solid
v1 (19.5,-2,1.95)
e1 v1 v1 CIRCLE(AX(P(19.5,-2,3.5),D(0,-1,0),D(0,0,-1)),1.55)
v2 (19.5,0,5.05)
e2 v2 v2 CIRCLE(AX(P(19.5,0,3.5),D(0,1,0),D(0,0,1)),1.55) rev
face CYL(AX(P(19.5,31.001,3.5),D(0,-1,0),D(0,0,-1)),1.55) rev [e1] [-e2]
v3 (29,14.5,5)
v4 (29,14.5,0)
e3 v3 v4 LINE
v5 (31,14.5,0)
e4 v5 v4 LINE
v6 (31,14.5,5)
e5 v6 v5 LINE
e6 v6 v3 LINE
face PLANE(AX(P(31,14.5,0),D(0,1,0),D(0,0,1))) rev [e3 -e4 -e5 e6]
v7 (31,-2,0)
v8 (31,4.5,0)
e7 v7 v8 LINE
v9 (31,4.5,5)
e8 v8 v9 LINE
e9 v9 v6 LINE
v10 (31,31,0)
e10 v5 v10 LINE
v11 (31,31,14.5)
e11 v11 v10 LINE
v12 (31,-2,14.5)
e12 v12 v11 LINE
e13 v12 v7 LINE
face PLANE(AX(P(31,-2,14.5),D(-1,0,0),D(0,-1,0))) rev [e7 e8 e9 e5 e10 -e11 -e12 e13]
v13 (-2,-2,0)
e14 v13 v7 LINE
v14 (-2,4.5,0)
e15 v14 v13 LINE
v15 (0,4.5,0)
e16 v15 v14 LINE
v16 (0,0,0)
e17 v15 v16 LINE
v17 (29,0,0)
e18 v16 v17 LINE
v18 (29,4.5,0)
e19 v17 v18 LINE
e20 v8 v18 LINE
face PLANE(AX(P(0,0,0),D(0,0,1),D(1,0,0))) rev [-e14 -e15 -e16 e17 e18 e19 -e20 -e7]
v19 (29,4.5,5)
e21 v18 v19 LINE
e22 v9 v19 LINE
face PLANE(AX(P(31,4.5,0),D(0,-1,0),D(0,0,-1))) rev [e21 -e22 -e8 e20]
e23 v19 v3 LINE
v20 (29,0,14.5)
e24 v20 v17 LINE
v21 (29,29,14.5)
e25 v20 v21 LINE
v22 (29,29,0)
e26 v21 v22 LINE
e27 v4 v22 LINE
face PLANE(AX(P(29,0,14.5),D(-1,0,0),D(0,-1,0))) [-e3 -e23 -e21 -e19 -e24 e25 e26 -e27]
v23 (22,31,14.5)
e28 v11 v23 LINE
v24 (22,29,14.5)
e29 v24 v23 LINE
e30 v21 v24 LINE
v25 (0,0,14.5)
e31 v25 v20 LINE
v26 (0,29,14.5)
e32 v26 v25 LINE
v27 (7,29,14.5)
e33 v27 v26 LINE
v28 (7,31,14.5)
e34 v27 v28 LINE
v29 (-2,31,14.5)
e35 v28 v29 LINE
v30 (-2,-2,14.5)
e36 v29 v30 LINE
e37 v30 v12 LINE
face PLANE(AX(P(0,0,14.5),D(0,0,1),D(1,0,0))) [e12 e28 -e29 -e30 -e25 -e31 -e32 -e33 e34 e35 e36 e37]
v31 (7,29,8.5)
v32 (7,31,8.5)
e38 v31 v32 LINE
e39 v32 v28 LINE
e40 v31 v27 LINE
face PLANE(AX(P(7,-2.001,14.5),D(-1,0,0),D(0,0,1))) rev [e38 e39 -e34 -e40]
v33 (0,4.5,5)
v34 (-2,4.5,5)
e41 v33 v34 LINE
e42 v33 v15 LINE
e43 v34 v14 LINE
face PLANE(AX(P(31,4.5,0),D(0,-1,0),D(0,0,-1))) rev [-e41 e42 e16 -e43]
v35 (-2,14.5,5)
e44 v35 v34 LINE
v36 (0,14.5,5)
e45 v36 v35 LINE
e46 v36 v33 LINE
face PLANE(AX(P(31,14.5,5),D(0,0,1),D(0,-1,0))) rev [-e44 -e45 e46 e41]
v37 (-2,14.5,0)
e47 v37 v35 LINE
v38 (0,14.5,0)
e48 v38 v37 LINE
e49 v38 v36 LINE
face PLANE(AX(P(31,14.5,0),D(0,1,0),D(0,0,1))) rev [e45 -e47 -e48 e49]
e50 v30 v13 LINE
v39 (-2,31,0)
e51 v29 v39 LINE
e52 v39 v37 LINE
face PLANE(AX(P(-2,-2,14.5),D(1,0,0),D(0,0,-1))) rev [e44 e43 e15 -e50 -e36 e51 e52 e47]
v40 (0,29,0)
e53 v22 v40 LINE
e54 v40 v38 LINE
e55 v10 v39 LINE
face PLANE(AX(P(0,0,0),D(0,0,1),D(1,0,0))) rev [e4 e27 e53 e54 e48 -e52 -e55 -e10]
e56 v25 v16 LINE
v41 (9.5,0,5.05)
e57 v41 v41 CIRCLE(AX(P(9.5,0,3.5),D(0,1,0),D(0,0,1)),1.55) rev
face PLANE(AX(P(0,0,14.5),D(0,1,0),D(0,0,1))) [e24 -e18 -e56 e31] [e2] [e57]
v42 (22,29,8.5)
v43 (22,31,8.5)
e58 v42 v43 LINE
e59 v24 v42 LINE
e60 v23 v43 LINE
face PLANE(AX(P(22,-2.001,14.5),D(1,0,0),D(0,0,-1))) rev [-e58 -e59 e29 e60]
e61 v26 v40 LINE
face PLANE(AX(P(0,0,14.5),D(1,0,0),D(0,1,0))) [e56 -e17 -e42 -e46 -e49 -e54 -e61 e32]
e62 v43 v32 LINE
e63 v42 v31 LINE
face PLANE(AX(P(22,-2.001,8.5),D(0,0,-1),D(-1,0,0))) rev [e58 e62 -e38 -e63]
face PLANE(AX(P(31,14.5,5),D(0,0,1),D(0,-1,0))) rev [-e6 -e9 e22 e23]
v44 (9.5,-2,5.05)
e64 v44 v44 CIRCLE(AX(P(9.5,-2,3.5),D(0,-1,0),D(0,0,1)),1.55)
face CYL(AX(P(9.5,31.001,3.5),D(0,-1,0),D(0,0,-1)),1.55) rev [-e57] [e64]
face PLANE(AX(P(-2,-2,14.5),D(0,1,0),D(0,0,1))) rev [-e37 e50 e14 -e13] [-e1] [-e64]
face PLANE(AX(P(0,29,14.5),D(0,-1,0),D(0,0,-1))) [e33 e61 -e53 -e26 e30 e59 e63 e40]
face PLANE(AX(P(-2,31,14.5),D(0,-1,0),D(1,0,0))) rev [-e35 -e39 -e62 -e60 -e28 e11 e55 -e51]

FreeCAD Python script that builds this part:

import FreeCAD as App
import Part
import Sketcher

V = App.Vector


def add_polygon(sketch, points):
    """Adds a closed chain of lines whose ends are joined by coincident constraints."""
    first, n = sketch.GeometryCount, len(points)
    for a, b in zip(points, points[1:] + points[:1]):
        sketch.addGeometry(Part.LineSegment(App.Vector(*a, 0), App.Vector(*b, 0)), False)
    for i in range(n):
        sketch.addConstraint(Sketcher.Constraint("Coincident", first + i, 2, first + (i + 1) % n, 1))

doc = App.newDocument("Part")
params = doc.addObject("Spreadsheet::Sheet", "Params")
for row, (alias, value) in enumerate([
    ("sketch1_width", "33 mm"),
    ("sketch1_width2", "29 mm"),
    ("pad1_length", "14.5 mm"),
    ("sketch2_width", "15 mm"),
    ("sketch2_height", "6 mm"),
    ("sketch3_diameter", "3.1 mm"),
    ("sketch4_diameter", "3.1 mm"),
    ("sketch5_width", "10 mm"),
    ("sketch5_height", "5 mm"),
], start=1):
    params.set(f"A{row}", alias)
    params.set(f"B{row}", "=" + value)
    params.setAlias(f"B{row}", alias)

body = doc.addObject("PartDesign::Body", "Body")

# Sketch on XY plane
sketch1 = body.newObject("Sketcher::SketchObject", "Sketch")
sketch1.AttachmentSupport = (doc.getObject("XY_Plane"), [""])
sketch1.MapMode = "FlatFace"
add_polygon(sketch1, [(-2, 31), (-2, -2), (31, -2), (31, 31)])  # lines 0-3
add_polygon(sketch1, [(29, 0), (0, 0), (0, 29), (29, 29)])  # lines 4-7
sketch1.addConstraint(Sketcher.Constraint("Vertical", 0))
sketch1.addConstraint(Sketcher.Constraint("Horizontal", 1))
sketch1.addConstraint(Sketcher.Constraint("Vertical", 2))
sketch1.addConstraint(Sketcher.Constraint("Horizontal", 3))
sketch1.addConstraint(Sketcher.Constraint("Horizontal", 4))
sketch1.addConstraint(Sketcher.Constraint("Vertical", 5))
sketch1.addConstraint(Sketcher.Constraint("Horizontal", 6))
sketch1.addConstraint(Sketcher.Constraint("Vertical", 7))
sketch1.addConstraint(Sketcher.Constraint("Coincident", 4, 2, -1, 1))
sketch1.addConstraint(Sketcher.Constraint("Equal", 3, 0))
sketch1.addConstraint(Sketcher.Constraint("Equal", 6, 5))
sketch1.addConstraint(Sketcher.Constraint("DistanceX", 1, 1, 1, 2, 33.0))
sketch1.addConstraint(Sketcher.Constraint("DistanceX", 4, 2, 4, 1, 29.0))
sketch1.addConstraint(Sketcher.Constraint("DistanceX", 0, 2, -1, 1, 2.0))
sketch1.addConstraint(Sketcher.Constraint("DistanceY", 0, 2, -1, 1, 2.0))
sketch1.setExpression("Constraints[19]", "Params.sketch1_width")
sketch1.setExpression("Constraints[20]", "Params.sketch1_width2")
pad1 = body.newObject("PartDesign::Pad", "Pad")
pad1.Profile = sketch1
pad1.setExpression("Length", "Params.pad1_length")

# Sketch on XZ plane
sketch2 = body.newObject("Sketcher::SketchObject", "Sketch001")
sketch2.AttachmentSupport = (doc.getObject("XZ_Plane"), [""])
sketch2.MapMode = "FlatFace"
sketch2.AttachmentOffset = App.Placement(V(0, 0, -31), App.Rotation())
add_polygon(sketch2, [(7, 8), (7, 14), (22, 14), (22, 8)])  # lines 0-3
sketch2.addConstraint(Sketcher.Constraint("Vertical", 0))
sketch2.addConstraint(Sketcher.Constraint("Horizontal", 1))
sketch2.addConstraint(Sketcher.Constraint("Vertical", 2))
sketch2.addConstraint(Sketcher.Constraint("Horizontal", 3))
sketch2.addConstraint(Sketcher.Constraint("DistanceX", 1, 1, 1, 2, 15.0))
sketch2.addConstraint(Sketcher.Constraint("DistanceY", 0, 1, 0, 2, 6.0))
sketch2.addConstraint(Sketcher.Constraint("DistanceX", -1, 1, 0, 2, 7.0))
sketch2.addConstraint(Sketcher.Constraint("DistanceY", -1, 1, 0, 2, 14.5))
sketch2.setExpression("Constraints[8]", "Params.sketch2_width")
sketch2.setExpression("Constraints[9]", "Params.sketch2_height")
pocket1 = body.newObject("PartDesign::Pocket", "Pocket")
pocket1.Profile = sketch2
pocket1.Type = "UpToFirst"
pocket1.Reversed = True

# Sketch on XZ plane
sketch3 = body.newObject("Sketcher::SketchObject", "Sketch002")
sketch3.AttachmentSupport = (doc.getObject("XZ_Plane"), [""])
sketch3.MapMode = "FlatFace"
sketch3.AttachmentOffset = App.Placement(V(0, 0, 2), App.Rotation())
sketch3.addGeometry(Part.Circle(V(19.5, 3.5, 0), V(0, 0, 1), 1.6), False)
sketch3.addConstraint(Sketcher.Constraint("Diameter", 0, 3.1))
sketch3.addConstraint(Sketcher.Constraint("DistanceX", -1, 1, 0, 3, 19.5))
sketch3.addConstraint(Sketcher.Constraint("DistanceY", -1, 1, 0, 3, 3.5))
sketch3.setExpression("Constraints[0]", "Params.sketch3_diameter")
pocket2 = body.newObject("PartDesign::Pocket", "Pocket001")
pocket2.Profile = sketch3
pocket2.Type = "UpToFirst"

# Sketch on XZ plane
sketch4 = body.newObject("Sketcher::SketchObject", "Sketch003")
sketch4.AttachmentSupport = (doc.getObject("XZ_Plane"), [""])
sketch4.MapMode = "FlatFace"
sketch4.AttachmentOffset = App.Placement(V(0, 0, 2), App.Rotation())
sketch4.addGeometry(Part.Circle(V(9.5, 3.5, 0), V(0, 0, 1), 1.6), False)
sketch4.addConstraint(Sketcher.Constraint("Diameter", 0, 3.1))
sketch4.addConstraint(Sketcher.Constraint("DistanceX", -1, 1, 0, 3, 9.5))
sketch4.addConstraint(Sketcher.Constraint("DistanceY", -1, 1, 0, 3, 3.5))
sketch4.setExpression("Constraints[0]", "Params.sketch4_diameter")
pocket3 = body.newObject("PartDesign::Pocket", "Pocket002")
pocket3.Profile = sketch4
pocket3.Type = "UpToFirst"

# Sketch on YZ plane
sketch5 = body.newObject("Sketcher::SketchObject", "Sketch004")
sketch5.AttachmentSupport = (doc.getObject("YZ_Plane"), [""])
sketch5.MapMode = "FlatFace"
sketch5.AttachmentOffset = App.Placement(V(0, 0, -2), App.Rotation())
add_polygon(sketch5, [(14, 0), (4, 0), (4, 5), (14, 5)])  # lines 0-3
sketch5.addConstraint(Sketcher.Constraint("Horizontal", 0))
sketch5.addConstraint(Sketcher.Constraint("Vertical", 1))
sketch5.addConstraint(Sketcher.Constraint("Horizontal", 2))
sketch5.addConstraint(Sketcher.Constraint("Vertical", 3))
sketch5.addConstraint(Sketcher.Constraint("PointOnObject", 0, 2, -1))
sketch5.addConstraint(Sketcher.Constraint("DistanceX", 0, 2, 0, 1, 10.0))
sketch5.addConstraint(Sketcher.Constraint("DistanceY", 1, 1, 1, 2, 5.0))
sketch5.addConstraint(Sketcher.Constraint("DistanceX", -1, 1, 0, 2, 4.5))
sketch5.setExpression("Constraints[9]", "Params.sketch5_width")
sketch5.setExpression("Constraints[10]", "Params.sketch5_height")
pocket4 = body.newObject("PartDesign::Pocket", "Pocket003")
pocket4.Profile = sketch5
pocket4.Type = "ThroughAll"
pocket4.Midplane = True

doc.recompute()
